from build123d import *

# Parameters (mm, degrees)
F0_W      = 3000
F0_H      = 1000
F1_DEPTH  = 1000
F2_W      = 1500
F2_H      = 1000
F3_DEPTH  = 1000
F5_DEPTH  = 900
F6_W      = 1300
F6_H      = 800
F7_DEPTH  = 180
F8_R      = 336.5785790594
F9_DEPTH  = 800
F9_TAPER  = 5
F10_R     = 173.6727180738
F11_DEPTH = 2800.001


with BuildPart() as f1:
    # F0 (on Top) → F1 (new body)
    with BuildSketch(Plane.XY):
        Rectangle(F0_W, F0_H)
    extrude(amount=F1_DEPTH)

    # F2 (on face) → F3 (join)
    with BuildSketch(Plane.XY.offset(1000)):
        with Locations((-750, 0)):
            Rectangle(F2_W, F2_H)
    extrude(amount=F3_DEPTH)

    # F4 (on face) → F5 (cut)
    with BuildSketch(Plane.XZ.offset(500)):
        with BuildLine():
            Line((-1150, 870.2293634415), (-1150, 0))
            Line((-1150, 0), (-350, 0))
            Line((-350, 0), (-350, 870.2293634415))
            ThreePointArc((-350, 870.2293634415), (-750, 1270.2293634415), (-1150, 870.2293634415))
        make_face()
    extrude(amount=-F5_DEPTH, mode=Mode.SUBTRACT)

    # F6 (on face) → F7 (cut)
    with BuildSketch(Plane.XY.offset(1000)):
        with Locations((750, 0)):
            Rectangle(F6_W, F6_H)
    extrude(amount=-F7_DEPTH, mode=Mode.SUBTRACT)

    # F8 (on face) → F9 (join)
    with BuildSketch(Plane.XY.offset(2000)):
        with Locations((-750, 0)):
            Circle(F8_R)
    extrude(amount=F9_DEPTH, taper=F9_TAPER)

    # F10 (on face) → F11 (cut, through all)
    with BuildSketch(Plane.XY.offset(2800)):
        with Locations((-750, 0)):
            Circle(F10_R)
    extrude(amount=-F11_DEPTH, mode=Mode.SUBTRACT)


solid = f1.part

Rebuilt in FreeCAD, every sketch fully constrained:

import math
import FreeCAD as App
import Part
import Sketcher
from FreeCAD import Vector
Q = App.Units.Quantity


def add_polygon(sketch, points):
    """Adds a closed chain of lines whose ends are joined by coincident constraints."""
    first, n = sketch.GeometryCount, len(points)
    for a, b in zip(points, points[1:] + points[:1]):
        sketch.addGeometry(Part.LineSegment(App.Vector(*a, 0), App.Vector(*b, 0)), False)
    for i in range(n):
        sketch.addConstraint(Sketcher.Constraint("Coincident", first + i, 2, first + (i + 1) % n, 1))

doc = App.newDocument("Part")
body = doc.addObject("PartDesign::Body", "Body")

# Sketch on XY plane
sketch1 = body.newObject("Sketcher::SketchObject", "Sketch")
sketch1.AttachmentSupport = (doc.getObject("XY_Plane"), [""])
sketch1.MapMode = "FlatFace"
add_polygon(sketch1, [(-1500, 500), (-1500, -500), (1500, -500), (1500, 500)])  # lines 0-3
sketch1.addConstraint(Sketcher.Constraint("Vertical", 0))
sketch1.addConstraint(Sketcher.Constraint("Horizontal", 1))
sketch1.addConstraint(Sketcher.Constraint("Vertical", 2))
sketch1.addConstraint(Sketcher.Constraint("Horizontal", 3))
sketch1.addConstraint(Sketcher.Constraint("Symmetric", 0, 2, 2, 2, -1, 1))
sketch1.addConstraint(Sketcher.Constraint("DistanceX", 1, 1, 1, 2, Q("3000 mm")))
sketch1.addConstraint(Sketcher.Constraint("DistanceY", 0, 2, 0, 1, Q("1000 mm")))
pad1 = body.newObject("PartDesign::Pad", "Pad")
pad1.Profile = sketch1
pad1.Length = 1000

# Sketch on XY plane
sketch2 = body.newObject("Sketcher::SketchObject", "Sketch001")
sketch2.AttachmentSupport = (doc.getObject("XY_Plane"), [""])
sketch2.MapMode = "FlatFace"
sketch2.AttachmentOffset = App.Placement(Vector(0, 0, 1000), App.Rotation())
add_polygon(sketch2, [(-1500, 500), (-1500, -500), (0, -500), (0, 500)])  # lines 0-3
sketch2.addConstraint(Sketcher.Constraint("Vertical", 0))
sketch2.addConstraint(Sketcher.Constraint("Horizontal", 1))
sketch2.addConstraint(Sketcher.Constraint("Vertical", 2))
sketch2.addConstraint(Sketcher.Constraint("Horizontal", 3))
sketch2.addConstraint(Sketcher.Constraint("Symmetric", 1, 2, 2, 2, -1, 1))
sketch2.addConstraint(Sketcher.Constraint("DistanceX", 1, 1, 1, 2, Q("1500 mm")))
sketch2.addConstraint(Sketcher.Constraint("DistanceY", 0, 2, 0, 1, Q("1000 mm")))
pad2 = body.newObject("PartDesign::Pad", "Pad001")
pad2.Profile = sketch2
pad2.Length = 1000

# Sketch on XZ plane
sketch3 = body.newObject("Sketcher::SketchObject", "Sketch002")
sketch3.AttachmentSupport = (doc.getObject("XZ_Plane"), [""])
sketch3.MapMode = "FlatFace"
sketch3.AttachmentOffset = App.Placement(Vector(0, 0, 500), App.Rotation())
sketch3.addGeometry(Part.LineSegment(Vector(-1150, 870, 0), Vector(-1150, 0, 0)), False)
sketch3.addGeometry(Part.LineSegment(Vector(-1150, 0, 0), Vector(-350, 0, 0)), False)
sketch3.addGeometry(Part.LineSegment(Vector(-350, 0, 0), Vector(-350, 870, 0)), False)
sketch3.addGeometry(Part.ArcOfCircle(Part.Circle(Vector(-750, 870, 0), Vector(0, 0, 1), 400), math.radians(0), math.radians(180)), False)
sketch3.addConstraint(Sketcher.Constraint("Coincident", 0, 2, 1, 1))
sketch3.addConstraint(Sketcher.Constraint("Coincident", 1, 2, 2, 1))
sketch3.addConstraint(Sketcher.Constraint("Tangent", 2, 2, 3, 1))
sketch3.addConstraint(Sketcher.Constraint("Tangent", 3, 2, 0, 1))
sketch3.addConstraint(Sketcher.Constraint("Vertical", 0))
sketch3.addConstraint(Sketcher.Constraint("Horizontal", 1))
sketch3.addConstraint(Sketcher.Constraint("Vertical", 2))
sketch3.addConstraint(Sketcher.Constraint("PointOnObject", 0, 2, -1))
sketch3.addConstraint(Sketcher.Constraint("Radius", 3, Q("400 mm")))
sketch3.addConstraint(Sketcher.Constraint("DistanceX", 3, 3, -1, 1, Q("750 mm")))
sketch3.addConstraint(Sketcher.Constraint("DistanceY", 0, 2, 0, 1, Q("870.229363 mm")))
pocket1 = body.newObject("PartDesign::Pocket", "Pocket")
pocket1.Profile = sketch3
pocket1.Length = 900

# Sketch on XY plane
sketch4 = body.newObject("Sketcher::SketchObject", "Sketch003")
sketch4.AttachmentSupport = (doc.getObject("XY_Plane"), [""])
sketch4.MapMode = "FlatFace"
sketch4.AttachmentOffset = App.Placement(Vector(0, 0, 1000), App.Rotation())
add_polygon(sketch4, [(100, 400), (100, -400), (1400, -400), (1400, 400)])  # lines 0-3
sketch4.addConstraint(Sketcher.Constraint("Vertical", 0))
sketch4.addConstraint(Sketcher.Constraint("Horizontal", 1))
sketch4.addConstraint(Sketcher.Constraint("Vertical", 2))
sketch4.addConstraint(Sketcher.Constraint("Horizontal", 3))
sketch4.addConstraint(Sketcher.Constraint("DistanceX", 1, 1, 1, 2, Q("1300 mm")))
sketch4.addConstraint(Sketcher.Constraint("DistanceY", 0, 2, 0, 1, Q("800 mm")))
sketch4.addConstraint(Sketcher.Constraint("DistanceX", -1, 1, 0, 2, Q("100 mm")))
sketch4.addConstraint(Sketcher.Constraint("DistanceY", 0, 2, -1, 1, Q("400 mm")))
pocket2 = body.newObject("PartDesign::Pocket", "Pocket001")
pocket2.Profile = sketch4
pocket2.Length = 180

# Sketch on XY plane
sketch5 = body.newObject("Sketcher::SketchObject", "Sketch004")
sketch5.AttachmentSupport = (doc.getObject("XY_Plane"), [""])
sketch5.MapMode = "FlatFace"
sketch5.AttachmentOffset = App.Placement(Vector(0, 0, 2000), App.Rotation())
sketch5.addGeometry(Part.Circle(Vector(-750, 0, 0), Vector(0, 0, 1), 337), False)
sketch5.addConstraint(Sketcher.Constraint("PointOnObject", 0, 3, -1))
sketch5.addConstraint(Sketcher.Constraint("DistanceX", 0, 3, -1, 1, Q("750 mm")))
sketch5.addConstraint(Sketcher.Constraint("Diameter", 0, Q("673.157158 mm")))
pad3 = body.newObject("PartDesign::Pad", "Pad002")
pad3.Profile = sketch5
pad3.Length = 800
pad3.TaperAngle = -5

# Sketch on XY plane
sketch6 = body.newObject("Sketcher::SketchObject", "Sketch005")
sketch6.AttachmentSupport = (doc.getObject("XY_Plane"), [""])
sketch6.MapMode = "FlatFace"
sketch6.AttachmentOffset = App.Placement(Vector(0, 0, 2800), App.Rotation())
sketch6.addGeometry(Part.Circle(Vector(-750, 0, 0), Vector(0, 0, 1), 174), False)
sketch6.addConstraint(Sketcher.Constraint("PointOnObject", 0, 3, -1))
sketch6.addConstraint(Sketcher.Constraint("DistanceX", 0, 3, -1, 1, Q("750 mm")))
sketch6.addConstraint(Sketcher.Constraint("Diameter", 0, Q("347.345436 mm")))
pocket3 = body.newObject("PartDesign::Pocket", "Pocket002")
pocket3.Profile = sketch6
pocket3.Type = "ThroughAll"

doc.recompute()
